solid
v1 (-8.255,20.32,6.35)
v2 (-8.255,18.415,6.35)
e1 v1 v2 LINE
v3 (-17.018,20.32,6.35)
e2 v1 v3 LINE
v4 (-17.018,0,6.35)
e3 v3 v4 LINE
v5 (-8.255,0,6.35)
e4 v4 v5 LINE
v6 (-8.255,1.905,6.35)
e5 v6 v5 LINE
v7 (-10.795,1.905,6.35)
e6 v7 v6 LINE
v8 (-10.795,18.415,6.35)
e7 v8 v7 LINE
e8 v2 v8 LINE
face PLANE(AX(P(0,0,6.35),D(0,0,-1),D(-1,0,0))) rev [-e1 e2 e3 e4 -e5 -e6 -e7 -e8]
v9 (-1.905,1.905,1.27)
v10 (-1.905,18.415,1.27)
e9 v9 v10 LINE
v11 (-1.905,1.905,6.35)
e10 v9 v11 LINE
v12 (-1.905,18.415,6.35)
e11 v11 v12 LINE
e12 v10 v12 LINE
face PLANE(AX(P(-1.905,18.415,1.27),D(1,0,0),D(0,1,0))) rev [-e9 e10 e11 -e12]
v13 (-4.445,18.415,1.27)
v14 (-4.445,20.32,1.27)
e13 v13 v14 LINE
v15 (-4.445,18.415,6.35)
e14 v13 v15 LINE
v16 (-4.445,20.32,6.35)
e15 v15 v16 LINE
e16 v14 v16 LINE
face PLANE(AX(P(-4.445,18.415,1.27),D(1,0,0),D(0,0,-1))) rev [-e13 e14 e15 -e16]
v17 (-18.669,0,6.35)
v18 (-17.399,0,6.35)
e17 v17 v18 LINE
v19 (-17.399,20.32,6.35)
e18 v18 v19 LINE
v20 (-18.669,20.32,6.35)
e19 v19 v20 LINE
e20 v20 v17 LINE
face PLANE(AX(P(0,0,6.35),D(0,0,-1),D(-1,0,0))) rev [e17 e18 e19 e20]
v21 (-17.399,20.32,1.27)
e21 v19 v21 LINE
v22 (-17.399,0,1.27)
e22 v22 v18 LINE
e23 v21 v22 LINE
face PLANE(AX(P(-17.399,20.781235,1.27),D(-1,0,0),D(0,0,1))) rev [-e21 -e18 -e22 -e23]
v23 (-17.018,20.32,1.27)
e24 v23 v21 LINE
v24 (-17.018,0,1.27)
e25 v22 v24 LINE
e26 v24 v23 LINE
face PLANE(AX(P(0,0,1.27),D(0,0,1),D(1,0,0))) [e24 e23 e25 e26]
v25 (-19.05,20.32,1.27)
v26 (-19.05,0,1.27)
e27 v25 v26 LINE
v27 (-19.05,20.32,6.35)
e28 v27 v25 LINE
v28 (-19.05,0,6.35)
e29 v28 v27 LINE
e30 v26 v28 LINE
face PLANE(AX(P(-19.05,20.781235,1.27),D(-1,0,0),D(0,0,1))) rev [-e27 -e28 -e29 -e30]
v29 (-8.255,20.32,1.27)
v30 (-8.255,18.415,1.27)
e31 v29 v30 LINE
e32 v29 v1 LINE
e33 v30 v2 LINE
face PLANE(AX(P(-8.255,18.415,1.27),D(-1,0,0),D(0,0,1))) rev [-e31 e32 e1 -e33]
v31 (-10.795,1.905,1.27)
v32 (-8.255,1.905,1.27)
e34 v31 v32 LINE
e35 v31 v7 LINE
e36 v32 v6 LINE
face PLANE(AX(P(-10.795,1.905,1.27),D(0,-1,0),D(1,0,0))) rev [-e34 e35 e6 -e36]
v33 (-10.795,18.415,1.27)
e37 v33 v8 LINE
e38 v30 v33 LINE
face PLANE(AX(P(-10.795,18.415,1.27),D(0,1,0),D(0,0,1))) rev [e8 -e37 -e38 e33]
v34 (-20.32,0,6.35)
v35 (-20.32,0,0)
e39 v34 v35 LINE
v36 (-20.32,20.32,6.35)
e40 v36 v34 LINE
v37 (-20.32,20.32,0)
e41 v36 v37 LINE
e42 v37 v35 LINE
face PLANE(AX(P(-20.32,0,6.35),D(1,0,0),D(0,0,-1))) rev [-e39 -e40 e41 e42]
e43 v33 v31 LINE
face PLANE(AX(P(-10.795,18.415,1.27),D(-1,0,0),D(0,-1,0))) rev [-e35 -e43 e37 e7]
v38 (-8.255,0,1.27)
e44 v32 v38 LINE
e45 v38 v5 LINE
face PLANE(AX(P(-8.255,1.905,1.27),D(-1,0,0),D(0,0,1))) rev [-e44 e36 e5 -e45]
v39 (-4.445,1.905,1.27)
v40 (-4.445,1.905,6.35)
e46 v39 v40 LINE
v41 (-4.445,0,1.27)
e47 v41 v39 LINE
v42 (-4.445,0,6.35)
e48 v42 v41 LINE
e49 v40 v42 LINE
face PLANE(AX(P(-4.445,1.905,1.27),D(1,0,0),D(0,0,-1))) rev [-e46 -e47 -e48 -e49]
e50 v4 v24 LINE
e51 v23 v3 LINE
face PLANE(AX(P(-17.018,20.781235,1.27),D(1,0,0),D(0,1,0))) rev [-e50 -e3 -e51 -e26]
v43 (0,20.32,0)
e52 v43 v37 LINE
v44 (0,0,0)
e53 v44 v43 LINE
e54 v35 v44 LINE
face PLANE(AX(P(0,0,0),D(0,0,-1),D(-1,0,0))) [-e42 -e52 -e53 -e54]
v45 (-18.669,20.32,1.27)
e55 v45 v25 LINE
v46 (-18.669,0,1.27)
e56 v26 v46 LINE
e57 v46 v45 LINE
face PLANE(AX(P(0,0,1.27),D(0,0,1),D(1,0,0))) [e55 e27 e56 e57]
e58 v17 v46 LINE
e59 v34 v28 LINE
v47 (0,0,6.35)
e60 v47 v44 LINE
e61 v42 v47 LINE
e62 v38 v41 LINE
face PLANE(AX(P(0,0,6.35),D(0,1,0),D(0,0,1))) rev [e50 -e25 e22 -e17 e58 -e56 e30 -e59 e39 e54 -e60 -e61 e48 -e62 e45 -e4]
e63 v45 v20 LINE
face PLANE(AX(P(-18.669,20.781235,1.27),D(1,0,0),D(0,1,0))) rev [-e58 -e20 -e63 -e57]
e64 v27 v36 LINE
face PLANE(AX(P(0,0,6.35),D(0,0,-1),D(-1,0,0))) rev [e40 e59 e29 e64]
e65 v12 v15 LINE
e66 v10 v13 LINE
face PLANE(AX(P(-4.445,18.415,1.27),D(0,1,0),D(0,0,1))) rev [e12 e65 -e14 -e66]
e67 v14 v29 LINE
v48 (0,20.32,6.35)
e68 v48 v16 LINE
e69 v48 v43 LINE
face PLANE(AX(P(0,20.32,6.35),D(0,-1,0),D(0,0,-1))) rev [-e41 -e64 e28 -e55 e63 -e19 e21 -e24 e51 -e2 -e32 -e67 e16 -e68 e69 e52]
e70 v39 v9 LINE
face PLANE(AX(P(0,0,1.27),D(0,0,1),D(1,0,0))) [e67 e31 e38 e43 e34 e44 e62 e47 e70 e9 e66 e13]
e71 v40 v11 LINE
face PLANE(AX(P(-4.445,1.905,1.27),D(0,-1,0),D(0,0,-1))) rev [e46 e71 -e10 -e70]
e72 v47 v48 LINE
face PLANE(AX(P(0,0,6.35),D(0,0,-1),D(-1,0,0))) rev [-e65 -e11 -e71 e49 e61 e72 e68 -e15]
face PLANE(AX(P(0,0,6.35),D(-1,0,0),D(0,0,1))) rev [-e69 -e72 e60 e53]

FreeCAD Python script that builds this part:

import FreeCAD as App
import Part
import Sketcher

V = App.Vector
Q = App.Units.Quantity


def add_polygon(sketch, points):
    """Adds a closed chain of lines whose ends are joined by coincident constraints."""
    first, n = sketch.GeometryCount, len(points)
    for a, b in zip(points, points[1:] + points[:1]):
        sketch.addGeometry(Part.LineSegment(App.Vector(*a, 0), App.Vector(*b, 0)), False)
    for i in range(n):
        sketch.addConstraint(Sketcher.Constraint("Coincident", first + i, 2, first + (i + 1) % n, 1))

doc = App.newDocument("Part")
body = doc.addObject("PartDesign::Body", "Body")

# Sketch on XY plane
sketch1 = body.newObject("Sketcher::SketchObject", "Sketch")
sketch1.AttachmentSupport = (doc.getObject("XY_Plane"), [""])
sketch1.MapMode = "FlatFace"
add_polygon(sketch1, [(-20.32, 0), (0, 0), (0, 20.32), (-20.32, 20.32)])  # lines 0-3
sketch1.addConstraint([
    Sketcher.Constraint("Horizontal", 0),
    Sketcher.Constraint("Vertical", 1),
    Sketcher.Constraint("Horizontal", 2),
    Sketcher.Constraint("Vertical", 3),
    Sketcher.Constraint("Coincident", 0, 2, -1, 1),
    Sketcher.Constraint("Equal", 2, 1),
    Sketcher.Constraint("DistanceX", 0, 1, 0, 2, Q("0.8 in")),
])
pad1 = body.newObject("PartDesign::Pad", "Pad")
pad1.Profile = sketch1
pad1.Length = Q("0.25 in")

# Sketch on XY plane
sketch2 = body.newObject("Sketcher::SketchObject", "Sketch001")
sketch2.AttachmentSupport = (doc.getObject("XY_Plane"), [""])
sketch2.MapMode = "FlatFace"
sketch2.AttachmentOffset = App.Placement(V(0, 0, 0.25 * 25.4), App.Rotation())
add_polygon(sketch2, [(-8.255, 18.415), (-10.795, 18.415), (-10.795, 1.905), (-8.255, 1.905), (-8.255, -0.532919), (-4.445, -0.532919), (-4.445, 1.905), (-1.905, 1.905), (-1.905, 18.415), (-4.445, 18.415), (-4.445, 20.32), (-8.255, 20.32)])  # lines 0-11
sketch2.addConstraint([
    Sketcher.Constraint("Horizontal", 0),
    Sketcher.Constraint("Vertical", 1),
    Sketcher.Constraint("Horizontal", 2),
    Sketcher.Constraint("Vertical", 3),
    Sketcher.Constraint("Horizontal", 4),
    Sketcher.Constraint("Vertical", 5),
    Sketcher.Constraint("Horizontal", 6),
    Sketcher.Constraint("Vertical", 7),
    Sketcher.Constraint("Horizontal", 8),
    Sketcher.Constraint("Vertical", 9),
    Sketcher.Constraint("Horizontal", 10),
    Sketcher.Constraint("Vertical", 11),
    Sketcher.Constraint("Horizontal", 2, 2, 5, 2),
    Sketcher.Constraint("Horizontal", 0, 2, 7, 2),
    Sketcher.Constraint("Vertical", 5, 2, 8, 2),
    Sketcher.Constraint("Vertical", 3, 2, 10, 2),
    Sketcher.Constraint("Equal", 2, 6),
    Sketcher.Constraint("DistanceX", 0, 2, 0, 1, Q("0.1 in")),
    Sketcher.Constraint("DistanceX", 4, 1, 4, 2, Q("0.15 in")),
    Sketcher.Constraint("DistanceY", 1, 2, 1, 1, Q("0.65 in")),
    Sketcher.Constraint("DistanceY", -1, 1, 9, 2, Q("0.8 in")),
    Sketcher.Constraint("DistanceY", 9, 1, 9, 2, Q("0.075 in")),
    Sketcher.Constraint("DistanceX", 0, 2, -1, 1, Q("0.425 in")),
    Sketcher.Constraint("DistanceY", 3, 2, 3, 1, 2.437919),
])
pocket1 = body.newObject("PartDesign::Pocket", "Pocket")
pocket1.Profile = sketch2
pocket1.Length = Q("0.2 in")

# Sketch on XY plane
sketch3 = body.newObject("Sketcher::SketchObject", "Sketch002")
sketch3.AttachmentSupport = (doc.getObject("XY_Plane"), [""])
sketch3.MapMode = "FlatFace"
sketch3.AttachmentOffset = App.Placement(V(0, 0, 0.25 * 25.4), App.Rotation())
add_polygon(sketch3, [(-19.05, 20.781235), (-19.05, -0.867446), (-18.669, -0.867446), (-18.669, 20.781235)])  # lines 0-3
add_polygon(sketch3, [(-17.399, 20.781235), (-17.399, -0.867446), (-17.018, -0.867446), (-17.018, 20.781235)])  # lines 4-7
sketch3.addConstraint([
    Sketcher.Constraint("Vertical", 0),
    Sketcher.Constraint("Horizontal", 1),
    Sketcher.Constraint("Vertical", 2),
    Sketcher.Constraint("Horizontal", 3),
    Sketcher.Constraint("Vertical", 4),
    Sketcher.Constraint("Horizontal", 5),
    Sketcher.Constraint("Vertical", 6),
    Sketcher.Constraint("Horizontal", 7),
    Sketcher.Constraint("Horizontal", 1, 2, 4, 2),
    Sketcher.Constraint("Horizontal", 3, 2, 6, 2),
    Sketcher.Constraint("Equal", 3, 5),
    Sketcher.Constraint("DistanceX", 1, 1, 1, 2, Q("0.015 in")),
    Sketcher.Constraint("DistanceX", 0, 2, -1, 1, Q("0.75 in")),
    Sketcher.Constraint("DistanceX", 5, 2, -1, 1, Q("0.67 in")),
    Sketcher.Constraint("DistanceY", 0, 2, 0, 1, 21.648681),
    Sketcher.Constraint("DistanceY", 0, 2, -1, 1, 0.867446),
])
pocket2 = body.newObject("PartDesign::Pocket", "Pocket001")
pocket2.Profile = sketch3
pocket2.Length = Q("0.2 in")

doc.recompute()
